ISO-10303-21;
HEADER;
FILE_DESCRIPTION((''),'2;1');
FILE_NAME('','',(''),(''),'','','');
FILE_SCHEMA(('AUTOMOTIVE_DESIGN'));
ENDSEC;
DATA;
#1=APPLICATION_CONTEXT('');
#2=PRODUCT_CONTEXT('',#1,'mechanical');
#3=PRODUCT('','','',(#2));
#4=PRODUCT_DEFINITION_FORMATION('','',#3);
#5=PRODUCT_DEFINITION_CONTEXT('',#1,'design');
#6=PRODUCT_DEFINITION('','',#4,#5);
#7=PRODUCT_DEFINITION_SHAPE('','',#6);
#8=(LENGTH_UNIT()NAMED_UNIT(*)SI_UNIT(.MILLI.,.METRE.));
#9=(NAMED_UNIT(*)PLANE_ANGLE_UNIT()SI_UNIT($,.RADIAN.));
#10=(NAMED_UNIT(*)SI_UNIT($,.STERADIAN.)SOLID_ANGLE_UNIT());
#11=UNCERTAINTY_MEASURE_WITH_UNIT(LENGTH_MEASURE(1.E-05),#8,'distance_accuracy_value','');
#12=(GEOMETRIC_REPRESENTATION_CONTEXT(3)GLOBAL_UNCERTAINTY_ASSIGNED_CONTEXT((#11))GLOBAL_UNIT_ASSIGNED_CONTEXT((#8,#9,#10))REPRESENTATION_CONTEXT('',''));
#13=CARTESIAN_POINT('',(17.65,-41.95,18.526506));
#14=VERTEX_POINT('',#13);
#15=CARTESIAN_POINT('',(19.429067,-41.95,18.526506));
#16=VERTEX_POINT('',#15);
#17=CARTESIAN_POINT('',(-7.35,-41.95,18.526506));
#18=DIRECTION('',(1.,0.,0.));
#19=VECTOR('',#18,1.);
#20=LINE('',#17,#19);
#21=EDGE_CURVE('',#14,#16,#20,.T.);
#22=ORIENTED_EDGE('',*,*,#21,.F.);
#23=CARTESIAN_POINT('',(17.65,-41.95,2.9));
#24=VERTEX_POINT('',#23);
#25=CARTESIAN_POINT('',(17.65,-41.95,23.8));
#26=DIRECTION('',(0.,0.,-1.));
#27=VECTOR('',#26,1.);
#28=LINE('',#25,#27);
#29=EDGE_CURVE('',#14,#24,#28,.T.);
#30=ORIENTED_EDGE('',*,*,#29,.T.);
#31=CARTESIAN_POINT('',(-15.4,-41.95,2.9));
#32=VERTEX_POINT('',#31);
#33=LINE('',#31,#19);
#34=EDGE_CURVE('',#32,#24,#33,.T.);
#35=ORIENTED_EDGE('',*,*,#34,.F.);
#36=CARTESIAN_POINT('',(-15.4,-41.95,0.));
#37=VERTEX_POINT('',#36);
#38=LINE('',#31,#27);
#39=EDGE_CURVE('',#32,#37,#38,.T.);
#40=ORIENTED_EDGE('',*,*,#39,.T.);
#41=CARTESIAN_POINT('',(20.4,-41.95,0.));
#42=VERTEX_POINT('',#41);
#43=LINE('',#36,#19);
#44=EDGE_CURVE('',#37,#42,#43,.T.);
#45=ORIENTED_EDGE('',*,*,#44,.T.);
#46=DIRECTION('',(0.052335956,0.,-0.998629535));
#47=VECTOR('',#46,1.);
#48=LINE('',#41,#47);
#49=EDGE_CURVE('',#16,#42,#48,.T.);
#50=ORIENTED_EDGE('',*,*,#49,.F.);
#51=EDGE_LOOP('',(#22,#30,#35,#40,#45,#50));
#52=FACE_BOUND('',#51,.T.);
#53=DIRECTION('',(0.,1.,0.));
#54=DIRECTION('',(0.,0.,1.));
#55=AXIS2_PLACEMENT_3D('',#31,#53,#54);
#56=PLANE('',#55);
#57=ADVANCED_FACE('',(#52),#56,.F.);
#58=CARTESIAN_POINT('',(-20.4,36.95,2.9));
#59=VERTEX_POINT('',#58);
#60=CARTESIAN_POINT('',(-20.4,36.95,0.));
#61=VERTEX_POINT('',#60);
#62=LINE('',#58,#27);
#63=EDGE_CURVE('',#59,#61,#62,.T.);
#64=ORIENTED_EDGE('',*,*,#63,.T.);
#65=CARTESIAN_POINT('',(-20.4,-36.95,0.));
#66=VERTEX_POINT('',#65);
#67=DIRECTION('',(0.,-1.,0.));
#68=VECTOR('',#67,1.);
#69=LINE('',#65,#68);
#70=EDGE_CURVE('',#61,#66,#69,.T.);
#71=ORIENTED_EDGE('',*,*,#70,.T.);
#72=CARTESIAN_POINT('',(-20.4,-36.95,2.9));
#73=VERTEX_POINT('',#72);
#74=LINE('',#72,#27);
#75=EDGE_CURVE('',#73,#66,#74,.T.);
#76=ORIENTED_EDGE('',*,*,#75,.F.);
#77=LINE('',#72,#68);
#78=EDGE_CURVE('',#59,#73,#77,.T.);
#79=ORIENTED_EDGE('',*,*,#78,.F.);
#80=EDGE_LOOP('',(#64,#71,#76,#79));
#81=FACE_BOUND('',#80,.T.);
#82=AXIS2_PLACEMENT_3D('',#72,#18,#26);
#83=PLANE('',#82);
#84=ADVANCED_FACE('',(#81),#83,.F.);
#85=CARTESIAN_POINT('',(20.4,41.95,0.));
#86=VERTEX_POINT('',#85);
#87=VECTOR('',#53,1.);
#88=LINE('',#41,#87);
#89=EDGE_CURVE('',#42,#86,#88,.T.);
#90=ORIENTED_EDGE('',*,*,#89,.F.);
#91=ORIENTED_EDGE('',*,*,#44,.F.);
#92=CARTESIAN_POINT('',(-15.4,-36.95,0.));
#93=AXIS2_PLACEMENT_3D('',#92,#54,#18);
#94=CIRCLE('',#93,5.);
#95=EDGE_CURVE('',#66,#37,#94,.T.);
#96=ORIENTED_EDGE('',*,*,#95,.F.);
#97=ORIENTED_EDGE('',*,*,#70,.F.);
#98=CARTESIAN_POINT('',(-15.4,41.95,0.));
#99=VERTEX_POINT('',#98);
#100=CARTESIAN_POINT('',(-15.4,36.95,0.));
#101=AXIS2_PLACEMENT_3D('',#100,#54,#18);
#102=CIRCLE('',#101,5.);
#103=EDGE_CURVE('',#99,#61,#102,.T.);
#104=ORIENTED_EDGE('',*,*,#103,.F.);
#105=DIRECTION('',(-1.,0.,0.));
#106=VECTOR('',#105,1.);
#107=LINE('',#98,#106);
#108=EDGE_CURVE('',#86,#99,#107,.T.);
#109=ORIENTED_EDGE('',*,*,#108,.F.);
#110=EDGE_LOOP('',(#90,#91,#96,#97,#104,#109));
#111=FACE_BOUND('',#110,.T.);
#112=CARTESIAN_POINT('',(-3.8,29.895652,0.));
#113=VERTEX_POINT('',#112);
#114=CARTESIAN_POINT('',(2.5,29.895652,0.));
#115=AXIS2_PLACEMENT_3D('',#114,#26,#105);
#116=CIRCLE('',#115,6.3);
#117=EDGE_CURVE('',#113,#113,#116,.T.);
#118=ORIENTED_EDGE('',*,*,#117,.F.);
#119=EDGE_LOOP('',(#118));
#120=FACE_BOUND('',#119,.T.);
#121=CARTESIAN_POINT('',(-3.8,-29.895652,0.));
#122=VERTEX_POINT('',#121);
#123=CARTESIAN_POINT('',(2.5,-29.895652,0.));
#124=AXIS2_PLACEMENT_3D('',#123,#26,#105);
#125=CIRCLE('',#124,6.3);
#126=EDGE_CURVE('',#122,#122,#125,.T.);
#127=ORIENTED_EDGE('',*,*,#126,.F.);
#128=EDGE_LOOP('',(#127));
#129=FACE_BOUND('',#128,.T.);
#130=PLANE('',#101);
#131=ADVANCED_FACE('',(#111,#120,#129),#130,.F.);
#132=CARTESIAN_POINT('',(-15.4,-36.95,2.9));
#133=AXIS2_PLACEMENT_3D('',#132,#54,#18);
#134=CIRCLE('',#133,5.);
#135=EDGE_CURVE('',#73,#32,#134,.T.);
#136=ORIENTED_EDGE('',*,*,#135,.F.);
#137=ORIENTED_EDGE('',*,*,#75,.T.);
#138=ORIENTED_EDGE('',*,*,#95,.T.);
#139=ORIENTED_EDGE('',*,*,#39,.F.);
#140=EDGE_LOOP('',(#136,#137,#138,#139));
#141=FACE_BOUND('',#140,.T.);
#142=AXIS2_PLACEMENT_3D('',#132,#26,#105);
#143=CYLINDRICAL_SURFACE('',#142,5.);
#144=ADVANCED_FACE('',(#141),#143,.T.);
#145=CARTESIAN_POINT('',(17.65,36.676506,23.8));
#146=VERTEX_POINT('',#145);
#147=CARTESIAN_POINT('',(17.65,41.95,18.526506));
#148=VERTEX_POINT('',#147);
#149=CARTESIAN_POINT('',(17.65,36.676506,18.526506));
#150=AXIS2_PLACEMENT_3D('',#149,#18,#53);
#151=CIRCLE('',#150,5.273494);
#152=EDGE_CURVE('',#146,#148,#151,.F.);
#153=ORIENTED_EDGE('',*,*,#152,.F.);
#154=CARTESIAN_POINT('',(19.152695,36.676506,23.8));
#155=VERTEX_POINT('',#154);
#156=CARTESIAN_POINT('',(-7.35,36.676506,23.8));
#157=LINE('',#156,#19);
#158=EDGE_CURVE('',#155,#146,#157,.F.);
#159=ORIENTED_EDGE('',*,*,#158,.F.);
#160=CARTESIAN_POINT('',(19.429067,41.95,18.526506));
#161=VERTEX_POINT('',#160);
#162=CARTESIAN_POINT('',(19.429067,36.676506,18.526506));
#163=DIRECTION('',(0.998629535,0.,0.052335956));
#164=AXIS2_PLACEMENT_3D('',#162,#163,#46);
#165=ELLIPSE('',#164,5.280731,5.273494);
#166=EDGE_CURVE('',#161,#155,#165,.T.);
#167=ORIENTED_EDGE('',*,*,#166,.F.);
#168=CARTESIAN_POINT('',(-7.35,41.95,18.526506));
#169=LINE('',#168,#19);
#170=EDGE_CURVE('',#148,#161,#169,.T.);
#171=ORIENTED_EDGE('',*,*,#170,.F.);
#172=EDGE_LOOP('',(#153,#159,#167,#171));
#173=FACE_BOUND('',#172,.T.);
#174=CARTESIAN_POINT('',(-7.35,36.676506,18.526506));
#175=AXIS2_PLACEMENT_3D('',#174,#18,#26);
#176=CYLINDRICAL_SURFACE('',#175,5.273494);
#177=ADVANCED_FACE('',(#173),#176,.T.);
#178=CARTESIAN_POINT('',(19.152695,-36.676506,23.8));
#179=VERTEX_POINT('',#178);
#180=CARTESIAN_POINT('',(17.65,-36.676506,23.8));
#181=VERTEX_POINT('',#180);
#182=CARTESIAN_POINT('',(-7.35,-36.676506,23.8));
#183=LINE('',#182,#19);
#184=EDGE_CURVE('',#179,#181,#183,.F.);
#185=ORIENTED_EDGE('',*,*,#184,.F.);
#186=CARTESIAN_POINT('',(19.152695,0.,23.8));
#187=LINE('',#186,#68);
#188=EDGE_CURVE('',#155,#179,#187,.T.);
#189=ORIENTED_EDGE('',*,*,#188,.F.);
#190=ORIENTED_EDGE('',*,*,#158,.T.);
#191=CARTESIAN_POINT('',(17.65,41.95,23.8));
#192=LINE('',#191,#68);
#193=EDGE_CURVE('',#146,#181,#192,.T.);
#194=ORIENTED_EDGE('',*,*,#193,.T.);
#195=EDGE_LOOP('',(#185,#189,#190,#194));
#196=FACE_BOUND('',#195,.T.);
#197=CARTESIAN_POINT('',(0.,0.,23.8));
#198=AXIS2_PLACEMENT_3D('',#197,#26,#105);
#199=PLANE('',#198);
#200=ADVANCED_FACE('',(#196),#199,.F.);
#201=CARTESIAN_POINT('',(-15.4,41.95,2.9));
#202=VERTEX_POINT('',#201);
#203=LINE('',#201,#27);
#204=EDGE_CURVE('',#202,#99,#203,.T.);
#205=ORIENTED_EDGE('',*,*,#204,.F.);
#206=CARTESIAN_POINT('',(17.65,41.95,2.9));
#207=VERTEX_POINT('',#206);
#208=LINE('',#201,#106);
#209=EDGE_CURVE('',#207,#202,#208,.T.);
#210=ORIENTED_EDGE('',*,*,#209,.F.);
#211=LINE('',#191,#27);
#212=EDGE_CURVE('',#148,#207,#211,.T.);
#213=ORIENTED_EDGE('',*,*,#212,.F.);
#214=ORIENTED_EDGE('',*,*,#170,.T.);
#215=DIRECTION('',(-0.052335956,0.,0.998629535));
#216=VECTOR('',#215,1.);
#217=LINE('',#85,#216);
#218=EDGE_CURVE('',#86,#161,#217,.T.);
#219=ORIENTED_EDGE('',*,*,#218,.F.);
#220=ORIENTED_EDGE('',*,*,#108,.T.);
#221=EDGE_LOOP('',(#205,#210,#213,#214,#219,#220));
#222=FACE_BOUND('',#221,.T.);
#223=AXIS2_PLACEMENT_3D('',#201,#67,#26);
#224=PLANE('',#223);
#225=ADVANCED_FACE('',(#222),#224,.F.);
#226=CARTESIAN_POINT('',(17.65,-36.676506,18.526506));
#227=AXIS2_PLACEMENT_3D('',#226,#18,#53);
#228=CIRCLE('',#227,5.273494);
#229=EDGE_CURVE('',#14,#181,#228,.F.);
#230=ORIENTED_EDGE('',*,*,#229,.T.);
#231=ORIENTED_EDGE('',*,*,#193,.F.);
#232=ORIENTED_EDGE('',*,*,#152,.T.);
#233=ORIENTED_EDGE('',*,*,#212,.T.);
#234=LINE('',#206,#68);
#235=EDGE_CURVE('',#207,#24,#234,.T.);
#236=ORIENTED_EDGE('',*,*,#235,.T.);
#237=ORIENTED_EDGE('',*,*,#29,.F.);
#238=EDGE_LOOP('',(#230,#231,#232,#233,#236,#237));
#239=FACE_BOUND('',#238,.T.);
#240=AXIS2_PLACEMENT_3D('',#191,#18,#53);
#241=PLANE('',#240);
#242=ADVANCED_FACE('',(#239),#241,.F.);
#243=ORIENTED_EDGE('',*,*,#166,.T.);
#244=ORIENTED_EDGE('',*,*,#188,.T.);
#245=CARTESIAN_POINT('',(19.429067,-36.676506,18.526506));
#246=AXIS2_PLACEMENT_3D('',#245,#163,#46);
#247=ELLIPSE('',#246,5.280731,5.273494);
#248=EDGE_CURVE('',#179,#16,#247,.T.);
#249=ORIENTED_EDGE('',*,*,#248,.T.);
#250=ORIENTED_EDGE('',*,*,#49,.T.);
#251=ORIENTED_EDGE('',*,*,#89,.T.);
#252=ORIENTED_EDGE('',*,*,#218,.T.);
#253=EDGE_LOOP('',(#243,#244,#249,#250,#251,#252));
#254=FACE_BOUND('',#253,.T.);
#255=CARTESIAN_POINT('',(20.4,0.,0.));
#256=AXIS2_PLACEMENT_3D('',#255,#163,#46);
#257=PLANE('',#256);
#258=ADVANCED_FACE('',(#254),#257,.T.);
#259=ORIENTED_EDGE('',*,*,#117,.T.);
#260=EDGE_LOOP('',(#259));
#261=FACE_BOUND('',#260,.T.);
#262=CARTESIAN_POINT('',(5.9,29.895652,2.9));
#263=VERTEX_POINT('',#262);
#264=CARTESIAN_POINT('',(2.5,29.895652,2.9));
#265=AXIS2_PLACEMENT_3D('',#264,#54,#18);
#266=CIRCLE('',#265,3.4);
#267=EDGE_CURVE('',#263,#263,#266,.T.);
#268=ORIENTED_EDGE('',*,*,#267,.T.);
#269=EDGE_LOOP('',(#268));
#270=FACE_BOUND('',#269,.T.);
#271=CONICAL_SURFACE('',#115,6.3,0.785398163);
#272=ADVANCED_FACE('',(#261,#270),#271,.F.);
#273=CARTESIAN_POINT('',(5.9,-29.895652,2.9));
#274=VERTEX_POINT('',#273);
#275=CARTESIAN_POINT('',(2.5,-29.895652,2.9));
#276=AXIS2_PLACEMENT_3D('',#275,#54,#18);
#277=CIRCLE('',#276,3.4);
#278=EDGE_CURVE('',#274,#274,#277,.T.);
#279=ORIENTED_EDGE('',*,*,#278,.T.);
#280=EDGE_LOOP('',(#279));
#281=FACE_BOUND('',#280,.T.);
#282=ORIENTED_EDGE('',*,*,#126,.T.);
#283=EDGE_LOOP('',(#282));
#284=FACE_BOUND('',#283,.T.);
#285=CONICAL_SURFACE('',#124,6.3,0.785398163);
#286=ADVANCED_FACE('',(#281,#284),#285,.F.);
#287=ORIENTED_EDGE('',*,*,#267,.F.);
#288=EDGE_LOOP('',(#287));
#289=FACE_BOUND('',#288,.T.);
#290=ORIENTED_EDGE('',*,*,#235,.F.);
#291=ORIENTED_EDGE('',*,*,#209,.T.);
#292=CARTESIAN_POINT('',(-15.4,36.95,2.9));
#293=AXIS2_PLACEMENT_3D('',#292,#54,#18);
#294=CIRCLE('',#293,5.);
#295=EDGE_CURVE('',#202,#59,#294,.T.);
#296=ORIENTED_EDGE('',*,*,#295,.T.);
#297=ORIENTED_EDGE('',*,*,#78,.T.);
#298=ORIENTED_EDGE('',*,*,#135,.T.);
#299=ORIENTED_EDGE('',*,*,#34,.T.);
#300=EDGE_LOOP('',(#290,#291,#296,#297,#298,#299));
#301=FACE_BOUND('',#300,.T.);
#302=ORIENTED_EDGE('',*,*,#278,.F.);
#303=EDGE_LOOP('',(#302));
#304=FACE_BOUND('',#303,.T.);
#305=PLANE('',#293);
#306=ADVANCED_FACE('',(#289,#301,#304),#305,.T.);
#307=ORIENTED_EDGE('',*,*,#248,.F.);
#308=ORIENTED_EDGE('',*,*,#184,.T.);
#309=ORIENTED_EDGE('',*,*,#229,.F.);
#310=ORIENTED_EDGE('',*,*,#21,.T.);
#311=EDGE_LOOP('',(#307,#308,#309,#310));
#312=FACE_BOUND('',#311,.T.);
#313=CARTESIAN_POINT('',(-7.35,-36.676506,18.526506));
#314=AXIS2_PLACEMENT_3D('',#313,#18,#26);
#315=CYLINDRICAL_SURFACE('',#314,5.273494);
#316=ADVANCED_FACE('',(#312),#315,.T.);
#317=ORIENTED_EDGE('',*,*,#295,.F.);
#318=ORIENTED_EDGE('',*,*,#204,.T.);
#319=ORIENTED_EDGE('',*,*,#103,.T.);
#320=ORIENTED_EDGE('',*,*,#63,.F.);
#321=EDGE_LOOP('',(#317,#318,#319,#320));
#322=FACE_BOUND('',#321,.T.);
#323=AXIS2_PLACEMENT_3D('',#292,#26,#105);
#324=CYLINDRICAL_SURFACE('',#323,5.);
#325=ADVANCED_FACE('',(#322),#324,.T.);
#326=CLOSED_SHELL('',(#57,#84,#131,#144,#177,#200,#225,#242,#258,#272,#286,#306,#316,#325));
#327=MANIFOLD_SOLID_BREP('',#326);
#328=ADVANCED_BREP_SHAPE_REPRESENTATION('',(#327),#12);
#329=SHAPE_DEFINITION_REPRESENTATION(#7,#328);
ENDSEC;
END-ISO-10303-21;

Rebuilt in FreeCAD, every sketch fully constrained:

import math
import FreeCAD as App
import Part
import Sketcher
Q = App.Units.Quantity


def add_polygon(sketch, points):
    """Adds a closed chain of lines whose ends are joined by coincident constraints."""
    first, n = sketch.GeometryCount, len(points)
    for a, b in zip(points, points[1:] + points[:1]):
        sketch.addGeometry(Part.LineSegment(App.Vector(*a, 0), App.Vector(*b, 0)), False)
    for i in range(n):
        sketch.addConstraint(Sketcher.Constraint("Coincident", first + i, 2, first + (i + 1) % n, 1))

doc = App.newDocument("Part")
body = doc.addObject("PartDesign::Body", "Body")

# Sketch on XY plane
sketch1 = body.newObject("Sketcher::SketchObject", "Sketch")
sketch1.AttachmentSupport = (doc.getObject("XY_Plane"), [""])
sketch1.MapMode = "FlatFace"
sketch1.addGeometry([
    Part.LineSegment(App.Vector(-15, -42, 0), App.Vector(20, -42, 0)),  # 0
    Part.LineSegment(App.Vector(20, -42, 0), App.Vector(20, 42, 0)),  # 1
    Part.LineSegment(App.Vector(20, 42, 0), App.Vector(-15, 42, 0)),  # 2
    Part.ArcOfCircle(Part.Circle(App.Vector(-15, 37, 0), App.Vector(0, 0, 1), 5), math.radians(90), math.radians(180)),  # 3
    Part.LineSegment(App.Vector(-20, 37, 0), App.Vector(-20, -37, 0)),  # 4
    Part.ArcOfCircle(Part.Circle(App.Vector(-15, -37, 0), App.Vector(0, 0, 1), 5), math.radians(180), math.radians(270)),  # 5
], False)
sketch1.addConstraint([
    Sketcher.Constraint("Coincident", 0, 2, 1, 1),
    Sketcher.Constraint("Coincident", 1, 2, 2, 1),
    Sketcher.Constraint("Tangent", 2, 2, 3, 1),
    Sketcher.Constraint("Tangent", 3, 2, 4, 1),
    Sketcher.Constraint("Tangent", 4, 2, 5, 1),
    Sketcher.Constraint("Tangent", 5, 2, 0, 1),
    Sketcher.Constraint("Horizontal", 0),
    Sketcher.Constraint("Vertical", 1),
    Sketcher.Constraint("Horizontal", 2),
    Sketcher.Constraint("Vertical", 4),
    Sketcher.Constraint("Equal", 3, 5),
    Sketcher.Constraint("Radius", 3, 5.0),
    Sketcher.Constraint("DistanceX", 0, 1, 0, 2, 35.8),
    Sketcher.Constraint("DistanceY", 1, 1, 1, 2, 83.9),
    Sketcher.Constraint("DistanceX", 3, 3, -1, 1, 15.4),
    Sketcher.Constraint("DistanceY", -1, 1, 3, 3, 36.95),
])
pad1 = body.newObject("PartDesign::Pad", "Pad")
pad1.Profile = sketch1
pad1.Length = 2.9

# Sketch on XY plane
sketch2 = body.newObject("Sketcher::SketchObject", "Sketch001")
sketch2.AttachmentSupport = (doc.getObject("XY_Plane"), [""])
sketch2.MapMode = "FlatFace"
sketch2.AttachmentOffset = App.Placement(App.Vector(0, 0, 2.9), App.Rotation())
add_polygon(sketch2, [(17.6, 42), (17.6, -42), (20.4, -42), (20.4, 42)])  # lines 0-3
sketch2.addConstraint([
    Sketcher.Constraint("Vertical", 0),
    Sketcher.Constraint("Horizontal", 1),
    Sketcher.Constraint("Vertical", 2),
    Sketcher.Constraint("Horizontal", 3),
    Sketcher.Constraint("DistanceY", 0, 2, 0, 1, 83.9),
    Sketcher.Constraint("DistanceX", 1, 1, 1, 2, 2.75),
    Sketcher.Constraint("DistanceX", -1, 1, 1, 2, 20.4),
    Sketcher.Constraint("DistanceY", 0, 2, -1, 1, 41.95),
])
pad2 = body.newObject("PartDesign::Pad", "Pad001")
pad2.Profile = sketch2
pad2.Length = 20.9

# Sketch on YZ plane
sketch3 = body.newObject("Sketcher::SketchObject", "Sketch002")
sketch3.AttachmentSupport = (doc.getObject("YZ_Plane"), [""])
sketch3.MapMode = "FlatFace"
sketch3.AttachmentOffset = App.Placement(App.Vector(0, 0, 20.4), App.Rotation())
sketch3.addGeometry([
    Part.LineSegment(App.Vector(42, 24, 0), App.Vector(37, 24, 0)),  # 0
    Part.ArcOfCircle(Part.Circle(App.Vector(37, 19, 0), App.Vector(0, 0, 1), 5), math.radians(0), math.radians(90)),  # 1
    Part.LineSegment(App.Vector(42, 19, 0), App.Vector(42, 24, 0)),  # 2
    Part.LineSegment(App.Vector(-37, 24, 0), App.Vector(-42, 24, 0)),  # 3
    Part.LineSegment(App.Vector(-42, 24, 0), App.Vector(-42, 19, 0)),  # 4
    Part.ArcOfCircle(Part.Circle(App.Vector(-37, 19, 0), App.Vector(0, 0, 1), 5), math.radians(90), math.radians(180)),  # 5
], False)
sketch3.addConstraint([
    Sketcher.Constraint("Tangent", 0, 2, 1, 2),
    Sketcher.Constraint("Tangent", 1, 1, 2, 1),
    Sketcher.Constraint("Coincident", 2, 2, 0, 1),
    Sketcher.Constraint("Coincident", 3, 2, 4, 1),
    Sketcher.Constraint("Tangent", 4, 2, 5, 2),
    Sketcher.Constraint("Tangent", 5, 1, 3, 1),
    Sketcher.Constraint("Horizontal", 0),
    Sketcher.Constraint("Vertical", 2),
    Sketcher.Constraint("Horizontal", 3),
    Sketcher.Constraint("Vertical", 4),
    Sketcher.Constraint("Equal", 1, 5),
    Sketcher.Constraint("Symmetric", 1, 3, 5, 3, -2),
    Sketcher.Constraint("DistanceY", -1, 1, 0, 2, 23.8),
    Sketcher.Constraint("DistanceX", 3, 2, 2, 2, 83.9),
    Sketcher.Constraint("Radius", 1, 5.273494),
])
pocket1 = body.newObject("PartDesign::Pocket", "Pocket")
pocket1.Profile = sketch3
pocket1.Length = 27.75

# Sketch on YZ plane
sketch4 = body.newObject("Sketcher::SketchObject", "Sketch003")
sketch4.AttachmentSupport = (doc.getObject("YZ_Plane"), [""])
sketch4.MapMode = "FlatFace"
sketch4.AttachmentOffset = App.Placement(App.Vector(0, 0, 2.5), App.Rotation())
add_polygon(sketch4, [(29.9, 2.9), (29.9, 0), (36.2, 0), (33.2, 3), (33.2, 2.9)])  # lines 0-4
sketch4.addGeometry(Part.LineSegment(App.Vector(29.9, 0, 0), App.Vector(29.9, 3, 0)), True)  # axis
sketch4.addConstraint([
    Sketcher.Constraint("Vertical", 0),
    Sketcher.Constraint("Horizontal", 1),
    Sketcher.Constraint("Vertical", 3),
    Sketcher.Constraint("Horizontal", 4),
    Sketcher.Constraint("Vertical", 5),
    Sketcher.Constraint("Coincident", 5, 1, 0, 2),
    Sketcher.Constraint("PointOnObject", 0, 2, -1),
    Sketcher.Constraint("Horizontal", 2, 2, 5, 2),
    Sketcher.Constraint("DistanceY", 5, 1, 5, 2, 3.0),
    Sketcher.Constraint("Angle", 2, Q("135 deg")),
    Sketcher.Constraint("DistanceX", 1, 1, 1, 2, 6.3),
    Sketcher.Constraint("DistanceY", 0, 2, 0, 1, 2.9),
    Sketcher.Constraint("DistanceX", -1, 1, 0, 2, 29.895652),
])
groove = body.newObject("PartDesign::Groove", "Groove")
groove.Profile = sketch4
groove.ReferenceAxis = (sketch4, ["Axis0"])
groove.Angle = 360
doc.recompute()

linearpattern = body.newObject("PartDesign::LinearPattern", "LinearPattern")
linearpattern.Originals = [groove]
linearpattern.Direction = (doc.getObject("Y_Axis"), [""])
linearpattern.Mode = "offset"
linearpattern.Offset = 59.791304
linearpattern.Occurrences = 2
linearpattern.Reversed = True
body.Tip = linearpattern

# Sketch on YZ plane
sketch5 = body.newObject("Sketcher::SketchObject", "Sketch004")
sketch5.AttachmentSupport = (doc.getObject("YZ_Plane"), [""])
sketch5.MapMode = "FlatFace"
sketch5.AttachmentOffset = App.Placement(App.Vector(0, 0, 20.4), App.Rotation())
add_polygon(sketch5, [(42, 42), (-42, 42), (-42, 0), (42, 0)])  # lines 0-3
sketch5.addConstraint([
    Sketcher.Constraint("Horizontal", 0),
    Sketcher.Constraint("Vertical", 1),
    Sketcher.Constraint("Horizontal", 2),
    Sketcher.Constraint("Vertical", 3),
    Sketcher.Constraint("Symmetric", 1, 2, 2, 2, -1, 1),
    Sketcher.Constraint("DistanceX", 0, 2, 0, 1, 83.9),
    Sketcher.Constraint("DistanceY", 1, 2, 1, 1, 41.834674),
])
groove2 = body.newObject("PartDesign::Groove", "Groove001")
groove2.Profile = sketch5
groove2.ReferenceAxis = (sketch5, ["H_Axis"])
groove2.Angle = 3
groove2.Reversed = True

doc.recompute()
